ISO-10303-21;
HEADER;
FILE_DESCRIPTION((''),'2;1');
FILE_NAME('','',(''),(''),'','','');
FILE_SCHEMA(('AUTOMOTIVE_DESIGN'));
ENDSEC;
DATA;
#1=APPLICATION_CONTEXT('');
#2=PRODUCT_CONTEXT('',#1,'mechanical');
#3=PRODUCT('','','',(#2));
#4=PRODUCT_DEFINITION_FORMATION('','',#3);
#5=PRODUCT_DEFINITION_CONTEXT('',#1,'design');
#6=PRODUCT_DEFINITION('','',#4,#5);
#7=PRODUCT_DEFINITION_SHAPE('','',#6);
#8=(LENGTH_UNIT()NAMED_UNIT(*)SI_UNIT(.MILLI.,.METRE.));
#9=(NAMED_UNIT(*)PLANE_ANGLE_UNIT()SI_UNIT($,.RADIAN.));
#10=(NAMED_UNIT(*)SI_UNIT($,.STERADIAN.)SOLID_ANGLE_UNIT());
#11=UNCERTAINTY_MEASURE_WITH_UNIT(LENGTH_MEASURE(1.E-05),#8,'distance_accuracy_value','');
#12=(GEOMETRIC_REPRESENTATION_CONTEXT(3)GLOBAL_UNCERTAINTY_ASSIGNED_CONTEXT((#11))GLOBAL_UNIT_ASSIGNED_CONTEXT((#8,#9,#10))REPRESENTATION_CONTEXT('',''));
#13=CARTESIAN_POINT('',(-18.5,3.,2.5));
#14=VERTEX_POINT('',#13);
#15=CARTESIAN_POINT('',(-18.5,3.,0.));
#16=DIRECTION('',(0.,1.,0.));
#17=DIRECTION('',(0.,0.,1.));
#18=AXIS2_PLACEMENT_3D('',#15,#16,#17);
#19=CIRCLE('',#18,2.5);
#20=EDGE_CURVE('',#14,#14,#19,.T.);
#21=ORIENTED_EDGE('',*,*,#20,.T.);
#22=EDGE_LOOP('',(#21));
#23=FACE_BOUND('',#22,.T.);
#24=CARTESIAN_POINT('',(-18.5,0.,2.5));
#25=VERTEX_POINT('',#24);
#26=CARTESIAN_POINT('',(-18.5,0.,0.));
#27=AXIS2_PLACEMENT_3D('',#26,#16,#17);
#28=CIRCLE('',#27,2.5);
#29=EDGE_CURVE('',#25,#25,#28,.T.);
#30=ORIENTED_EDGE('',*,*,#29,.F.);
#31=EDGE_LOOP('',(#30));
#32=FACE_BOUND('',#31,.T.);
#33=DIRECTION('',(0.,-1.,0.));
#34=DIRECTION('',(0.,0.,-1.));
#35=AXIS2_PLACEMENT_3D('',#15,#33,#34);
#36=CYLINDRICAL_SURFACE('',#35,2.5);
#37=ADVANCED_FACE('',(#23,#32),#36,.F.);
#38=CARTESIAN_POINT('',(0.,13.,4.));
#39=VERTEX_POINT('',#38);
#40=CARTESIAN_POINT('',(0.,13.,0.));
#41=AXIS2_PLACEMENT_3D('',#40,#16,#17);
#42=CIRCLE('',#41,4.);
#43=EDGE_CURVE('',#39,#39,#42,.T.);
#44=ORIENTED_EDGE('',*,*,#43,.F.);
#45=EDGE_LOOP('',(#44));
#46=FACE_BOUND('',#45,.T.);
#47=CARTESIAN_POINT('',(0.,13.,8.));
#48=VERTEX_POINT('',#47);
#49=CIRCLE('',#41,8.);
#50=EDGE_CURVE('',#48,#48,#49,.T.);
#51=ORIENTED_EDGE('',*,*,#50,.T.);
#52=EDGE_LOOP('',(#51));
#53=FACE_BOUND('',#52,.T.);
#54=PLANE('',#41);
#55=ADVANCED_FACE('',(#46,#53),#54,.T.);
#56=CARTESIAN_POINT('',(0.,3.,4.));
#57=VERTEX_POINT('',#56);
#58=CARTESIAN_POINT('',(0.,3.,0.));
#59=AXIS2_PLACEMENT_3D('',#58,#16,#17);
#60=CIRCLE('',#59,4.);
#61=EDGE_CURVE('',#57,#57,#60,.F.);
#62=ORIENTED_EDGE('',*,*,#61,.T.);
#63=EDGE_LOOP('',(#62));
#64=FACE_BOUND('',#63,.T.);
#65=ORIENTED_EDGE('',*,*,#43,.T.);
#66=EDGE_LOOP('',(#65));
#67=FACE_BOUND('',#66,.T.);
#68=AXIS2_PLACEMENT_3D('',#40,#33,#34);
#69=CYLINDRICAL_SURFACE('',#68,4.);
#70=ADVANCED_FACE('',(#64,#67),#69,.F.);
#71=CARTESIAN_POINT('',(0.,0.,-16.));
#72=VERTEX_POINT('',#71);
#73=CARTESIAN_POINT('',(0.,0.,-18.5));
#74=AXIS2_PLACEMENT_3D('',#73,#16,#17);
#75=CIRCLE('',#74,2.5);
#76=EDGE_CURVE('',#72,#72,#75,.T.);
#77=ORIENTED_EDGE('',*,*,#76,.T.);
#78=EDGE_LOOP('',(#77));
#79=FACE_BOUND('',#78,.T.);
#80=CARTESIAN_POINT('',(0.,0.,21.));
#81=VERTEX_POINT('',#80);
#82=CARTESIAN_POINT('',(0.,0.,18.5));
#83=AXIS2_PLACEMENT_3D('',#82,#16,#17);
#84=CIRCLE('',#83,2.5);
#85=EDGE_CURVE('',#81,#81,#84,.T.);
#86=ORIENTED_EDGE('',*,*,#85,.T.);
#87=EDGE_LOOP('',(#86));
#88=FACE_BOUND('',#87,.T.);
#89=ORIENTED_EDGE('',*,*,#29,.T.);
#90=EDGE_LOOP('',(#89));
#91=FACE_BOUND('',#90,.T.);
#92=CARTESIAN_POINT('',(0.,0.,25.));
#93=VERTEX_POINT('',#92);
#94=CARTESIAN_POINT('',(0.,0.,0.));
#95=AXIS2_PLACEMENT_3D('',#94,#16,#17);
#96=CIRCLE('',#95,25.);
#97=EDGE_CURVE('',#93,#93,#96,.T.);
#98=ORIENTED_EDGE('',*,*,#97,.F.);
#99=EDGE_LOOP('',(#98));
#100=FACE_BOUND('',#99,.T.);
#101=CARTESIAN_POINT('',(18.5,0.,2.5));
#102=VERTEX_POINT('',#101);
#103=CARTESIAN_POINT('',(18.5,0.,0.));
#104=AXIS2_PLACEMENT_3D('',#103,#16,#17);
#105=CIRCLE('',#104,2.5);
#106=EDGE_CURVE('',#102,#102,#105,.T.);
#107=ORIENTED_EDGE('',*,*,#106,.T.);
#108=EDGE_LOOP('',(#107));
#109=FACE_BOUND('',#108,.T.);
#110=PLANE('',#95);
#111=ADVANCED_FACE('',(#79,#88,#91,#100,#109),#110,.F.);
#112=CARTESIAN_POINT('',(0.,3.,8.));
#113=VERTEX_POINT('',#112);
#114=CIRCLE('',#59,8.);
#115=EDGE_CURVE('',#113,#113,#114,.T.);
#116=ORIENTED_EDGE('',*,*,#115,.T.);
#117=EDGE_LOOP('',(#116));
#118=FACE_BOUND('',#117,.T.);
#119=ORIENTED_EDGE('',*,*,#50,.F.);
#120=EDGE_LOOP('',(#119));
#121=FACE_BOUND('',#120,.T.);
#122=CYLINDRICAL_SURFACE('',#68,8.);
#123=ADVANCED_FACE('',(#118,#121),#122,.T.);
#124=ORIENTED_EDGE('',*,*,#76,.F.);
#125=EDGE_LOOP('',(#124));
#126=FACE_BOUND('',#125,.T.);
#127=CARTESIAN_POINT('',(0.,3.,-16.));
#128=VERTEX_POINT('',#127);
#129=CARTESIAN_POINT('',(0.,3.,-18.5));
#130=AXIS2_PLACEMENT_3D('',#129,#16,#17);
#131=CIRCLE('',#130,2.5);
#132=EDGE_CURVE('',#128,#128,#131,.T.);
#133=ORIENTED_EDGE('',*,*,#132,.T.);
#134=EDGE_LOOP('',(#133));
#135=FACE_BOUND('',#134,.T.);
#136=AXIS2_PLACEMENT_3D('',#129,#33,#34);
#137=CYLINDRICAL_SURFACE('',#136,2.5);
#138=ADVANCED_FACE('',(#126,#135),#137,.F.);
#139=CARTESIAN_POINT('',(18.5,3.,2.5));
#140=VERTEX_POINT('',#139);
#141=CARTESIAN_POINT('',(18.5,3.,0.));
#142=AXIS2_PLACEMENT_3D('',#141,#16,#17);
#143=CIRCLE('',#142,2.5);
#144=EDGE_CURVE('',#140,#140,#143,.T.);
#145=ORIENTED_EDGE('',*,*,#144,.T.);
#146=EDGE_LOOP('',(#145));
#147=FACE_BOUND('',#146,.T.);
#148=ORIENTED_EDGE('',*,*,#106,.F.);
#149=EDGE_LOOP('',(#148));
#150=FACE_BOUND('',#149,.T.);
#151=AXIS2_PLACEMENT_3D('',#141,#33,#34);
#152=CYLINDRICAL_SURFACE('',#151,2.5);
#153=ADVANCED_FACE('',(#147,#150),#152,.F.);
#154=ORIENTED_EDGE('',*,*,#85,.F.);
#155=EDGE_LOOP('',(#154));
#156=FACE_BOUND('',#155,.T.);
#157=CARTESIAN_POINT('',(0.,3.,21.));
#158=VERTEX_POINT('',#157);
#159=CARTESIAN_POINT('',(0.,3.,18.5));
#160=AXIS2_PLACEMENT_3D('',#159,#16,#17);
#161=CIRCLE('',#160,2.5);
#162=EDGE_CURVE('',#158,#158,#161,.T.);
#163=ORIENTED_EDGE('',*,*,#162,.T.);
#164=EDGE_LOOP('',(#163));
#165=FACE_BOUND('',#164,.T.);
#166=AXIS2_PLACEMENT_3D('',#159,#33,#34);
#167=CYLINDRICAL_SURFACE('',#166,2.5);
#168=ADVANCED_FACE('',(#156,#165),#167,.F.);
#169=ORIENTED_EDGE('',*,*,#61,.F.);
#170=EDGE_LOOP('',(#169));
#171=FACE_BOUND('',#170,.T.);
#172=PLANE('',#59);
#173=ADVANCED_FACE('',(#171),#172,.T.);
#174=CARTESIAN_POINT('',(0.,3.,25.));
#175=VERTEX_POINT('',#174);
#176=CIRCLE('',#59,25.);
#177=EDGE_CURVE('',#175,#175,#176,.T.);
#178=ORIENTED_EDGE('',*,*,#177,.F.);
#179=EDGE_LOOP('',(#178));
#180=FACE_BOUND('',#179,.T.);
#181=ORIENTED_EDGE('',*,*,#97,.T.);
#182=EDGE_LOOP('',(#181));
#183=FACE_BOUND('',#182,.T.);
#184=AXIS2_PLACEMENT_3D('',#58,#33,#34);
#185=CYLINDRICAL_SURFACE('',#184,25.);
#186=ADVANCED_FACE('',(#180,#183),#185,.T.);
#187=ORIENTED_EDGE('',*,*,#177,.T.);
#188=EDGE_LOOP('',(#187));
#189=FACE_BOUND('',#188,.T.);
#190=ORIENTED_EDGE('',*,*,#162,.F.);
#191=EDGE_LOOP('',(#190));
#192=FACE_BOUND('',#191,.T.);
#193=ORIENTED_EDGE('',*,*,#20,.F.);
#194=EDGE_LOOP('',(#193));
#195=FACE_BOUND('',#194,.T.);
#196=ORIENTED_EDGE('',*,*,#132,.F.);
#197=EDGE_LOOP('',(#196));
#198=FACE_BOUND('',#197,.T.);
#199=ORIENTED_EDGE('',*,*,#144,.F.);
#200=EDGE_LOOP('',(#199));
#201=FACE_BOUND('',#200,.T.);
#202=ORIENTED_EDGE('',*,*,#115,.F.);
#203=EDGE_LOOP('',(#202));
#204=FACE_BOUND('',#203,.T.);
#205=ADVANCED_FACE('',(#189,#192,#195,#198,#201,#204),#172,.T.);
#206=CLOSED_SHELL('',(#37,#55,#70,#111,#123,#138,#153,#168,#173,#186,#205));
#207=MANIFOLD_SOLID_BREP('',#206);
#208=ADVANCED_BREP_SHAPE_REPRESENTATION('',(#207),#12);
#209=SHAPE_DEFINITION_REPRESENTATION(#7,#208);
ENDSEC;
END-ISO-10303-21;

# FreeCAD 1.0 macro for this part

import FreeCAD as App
import Part
import Sketcher
Q = App.Units.Quantity

doc = App.newDocument("Part")
body = doc.addObject("PartDesign::Body", "Body")

# Sketch on XZ plane
sketch1 = body.newObject("Sketcher::SketchObject", "Sketch")
sketch1.AttachmentSupport = (doc.getObject("XZ_Plane"), [""])
sketch1.MapMode = "FlatFace"
sketch1.addGeometry([
    Part.Circle(App.Vector(0, 0, 0), App.Vector(0, 0, 1), 25),  # 0
    Part.Circle(App.Vector(0, 18.5, 0), App.Vector(0, 0, 1), 2.5),  # 1
    Part.Circle(App.Vector(-18.5, 0, 0), App.Vector(0, 0, 1), 2.5),  # 2
    Part.Circle(App.Vector(18.5, 0, 0), App.Vector(0, 0, 1), 2.5),  # 3
    Part.Circle(App.Vector(0, -18.5, 0), App.Vector(0, 0, 1), 2.5),  # 4
], False)
sketch1.addConstraint([
    Sketcher.Constraint("Coincident", 0, 3, -1, 1),
    Sketcher.Constraint("Equal", 1, 2),
    Sketcher.Constraint("Equal", 2, 3),
    Sketcher.Constraint("Equal", 3, 4),
    Sketcher.Constraint("Symmetric", 2, 3, 3, 3, -1, 1),
    Sketcher.Constraint("Symmetric", 1, 3, 4, 3, -1, 1),
    Sketcher.Constraint("PointOnObject", 1, 3, -2),
    Sketcher.Constraint("PointOnObject", 2, 3, -1),
    Sketcher.Constraint("Diameter", 0, Q("50 mm")),
    Sketcher.Constraint("Diameter", 1, Q("5 mm")),
    Sketcher.Constraint("DistanceX", 2, 3, 3, 3, Q("37 mm")),
    Sketcher.Constraint("DistanceY", 4, 3, 1, 3, Q("37 mm")),
])
pad1 = body.newObject("PartDesign::Pad", "Pad")
pad1.Profile = sketch1
pad1.Length = 3
pad1.Reversed = True

# Sketch on XZ plane
sketch2 = body.newObject("Sketcher::SketchObject", "Sketch001")
sketch2.AttachmentSupport = (doc.getObject("XZ_Plane"), [""])
sketch2.MapMode = "FlatFace"
sketch2.AttachmentOffset = App.Placement(App.Vector(0, 0, -3), App.Rotation())
sketch2.addGeometry([
    Part.Circle(App.Vector(0, 0, 0), App.Vector(0, 0, 1), 8),
    Part.Circle(App.Vector(0, 0, 0), App.Vector(0, 0, 1), 4),
], False)
sketch2.addConstraint([
    Sketcher.Constraint("Coincident", 0, 3, -1, 1),
    Sketcher.Constraint("Coincident", 1, 3, -1, 1),
    Sketcher.Constraint("Diameter", 0, Q("16 mm")),
    Sketcher.Constraint("Diameter", 1, Q("8 mm")),
])
pad2 = body.newObject("PartDesign::Pad", "Pad001")
pad2.Profile = sketch2
pad2.Length = 10
pad2.Reversed = True

doc.recompute()
